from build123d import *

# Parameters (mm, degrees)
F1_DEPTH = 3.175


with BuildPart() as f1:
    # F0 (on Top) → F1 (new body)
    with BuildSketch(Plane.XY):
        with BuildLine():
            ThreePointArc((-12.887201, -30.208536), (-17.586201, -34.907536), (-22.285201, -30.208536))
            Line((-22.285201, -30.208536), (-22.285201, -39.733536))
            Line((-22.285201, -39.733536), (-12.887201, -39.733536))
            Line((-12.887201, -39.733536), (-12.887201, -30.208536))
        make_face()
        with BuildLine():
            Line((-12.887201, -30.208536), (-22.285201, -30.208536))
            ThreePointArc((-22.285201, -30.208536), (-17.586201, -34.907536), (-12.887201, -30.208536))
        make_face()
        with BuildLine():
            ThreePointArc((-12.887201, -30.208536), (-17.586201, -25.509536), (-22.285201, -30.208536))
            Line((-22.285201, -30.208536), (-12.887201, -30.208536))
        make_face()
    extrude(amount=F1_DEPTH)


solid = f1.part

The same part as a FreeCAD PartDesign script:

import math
import FreeCAD as App
import Part
import Sketcher

V = App.Vector
Q = App.Units.Quantity

doc = App.newDocument("Part")
body = doc.addObject("PartDesign::Body", "Body")

# Sketch on XY plane
sketch1 = body.newObject("Sketcher::SketchObject", "Sketch")
sketch1.AttachmentSupport = (doc.getObject("XY_Plane"), [""])
sketch1.MapMode = "FlatFace"
sketch1.addGeometry(Part.LineSegment(V(-22.3, -30.2, 0), V(-22.3, -39.7, 0)), False)
sketch1.addGeometry(Part.LineSegment(V(-22.3, -39.7, 0), V(-12.9, -39.7, 0)), False)
sketch1.addGeometry(Part.LineSegment(V(-12.9, -39.7, 0), V(-12.9, -30.2, 0)), False)
sketch1.addGeometry(Part.ArcOfCircle(Part.Circle(V(-17.6, -30.2, 0), V(0, 0, 1), 4.7), math.radians(0), math.radians(180)), False)
sketch1.addConstraint(Sketcher.Constraint("Coincident", 0, 2, 1, 1))
sketch1.addConstraint(Sketcher.Constraint("Coincident", 1, 2, 2, 1))
sketch1.addConstraint(Sketcher.Constraint("Tangent", 2, 2, 3, 1))
sketch1.addConstraint(Sketcher.Constraint("Tangent", 3, 2, 0, 1))
sketch1.addConstraint(Sketcher.Constraint("Vertical", 0))
sketch1.addConstraint(Sketcher.Constraint("Horizontal", 1))
sketch1.addConstraint(Sketcher.Constraint("Vertical", 2))
sketch1.addConstraint(Sketcher.Constraint("Radius", 3, Q("0.185 in")))
sketch1.addConstraint(Sketcher.Constraint("DistanceY", 0, 2, 0, 1, Q("0.375 in")))
sketch1.addConstraint(Sketcher.Constraint("DistanceX", 3, 3, -1, 1, 17.586201))
sketch1.addConstraint(Sketcher.Constraint("DistanceY", 3, 3, -1, 1, 30.208536))
pad1 = body.newObject("PartDesign::Pad", "Pad")
pad1.Profile = sketch1
pad1.Length = Q("0.125 in")

doc.recompute()
